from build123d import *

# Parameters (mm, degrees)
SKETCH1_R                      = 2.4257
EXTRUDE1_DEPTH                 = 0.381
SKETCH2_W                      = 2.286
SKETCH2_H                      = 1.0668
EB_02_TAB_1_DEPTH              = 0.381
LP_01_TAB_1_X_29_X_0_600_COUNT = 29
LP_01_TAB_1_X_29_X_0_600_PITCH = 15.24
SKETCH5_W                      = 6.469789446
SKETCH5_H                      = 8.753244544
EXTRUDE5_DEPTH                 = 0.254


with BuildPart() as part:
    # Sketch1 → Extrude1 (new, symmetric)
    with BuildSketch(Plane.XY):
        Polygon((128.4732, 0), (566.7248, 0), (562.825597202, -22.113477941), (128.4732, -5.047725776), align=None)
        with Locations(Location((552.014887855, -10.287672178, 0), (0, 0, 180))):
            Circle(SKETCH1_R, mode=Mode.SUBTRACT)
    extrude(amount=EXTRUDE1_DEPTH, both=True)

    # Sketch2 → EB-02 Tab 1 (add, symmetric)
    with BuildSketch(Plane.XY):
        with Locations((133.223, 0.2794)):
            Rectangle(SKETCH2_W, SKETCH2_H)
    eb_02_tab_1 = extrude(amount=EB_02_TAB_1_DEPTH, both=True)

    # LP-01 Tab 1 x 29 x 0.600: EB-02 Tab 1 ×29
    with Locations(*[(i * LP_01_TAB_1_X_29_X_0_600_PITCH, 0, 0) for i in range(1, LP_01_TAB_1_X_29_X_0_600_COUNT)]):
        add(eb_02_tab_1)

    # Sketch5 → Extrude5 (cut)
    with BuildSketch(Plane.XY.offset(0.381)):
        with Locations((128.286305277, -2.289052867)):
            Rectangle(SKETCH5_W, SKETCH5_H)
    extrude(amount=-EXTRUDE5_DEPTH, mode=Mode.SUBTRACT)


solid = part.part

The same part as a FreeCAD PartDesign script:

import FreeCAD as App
import Part
import Sketcher
Q = App.Units.Quantity


def add_polygon(sketch, points):
    """Adds a closed chain of lines whose ends are joined by coincident constraints."""
    first, n = sketch.GeometryCount, len(points)
    for a, b in zip(points, points[1:] + points[:1]):
        sketch.addGeometry(Part.LineSegment(App.Vector(*a, 0), App.Vector(*b, 0)), False)
    for i in range(n):
        sketch.addConstraint(Sketcher.Constraint("Coincident", first + i, 2, first + (i + 1) % n, 1))

doc = App.newDocument("Part")
params = doc.addObject("Spreadsheet::Sheet", "Params")
for row, (alias, value) in enumerate([
    ("sketch1_diameter", "0.191 in"),
    ("sketch1_width", "17.254 in"),
    ("pad1_length", "0.03 in"),
    ("sketch2_width", "0.09 in"),
    ("sketch2_height", "0.042 in"),
    ("pad2_length", "0.03 in"),
    ("linearpattern_pitch", "0.6 in"),
    ("pocket1_length", "0.01 in"),
], start=1):
    params.set(f"A{row}", alias)
    params.set(f"B{row}", "=" + value)
    params.setAlias(f"B{row}", alias)

body = doc.addObject("PartDesign::Body", "Body")

# Sketch on XY plane
sketch1 = body.newObject("Sketcher::SketchObject", "Sketch")
sketch1.AttachmentSupport = (doc.getObject("XY_Plane"), [""])
sketch1.MapMode = "FlatFace"
add_polygon(sketch1, [(566.7, 0), (128.5, 0), (128.5, -5), (562.8, -22.1)])  # lines 0-3
sketch1.addGeometry(Part.Circle(App.Vector(552, -10.3, 0), App.Vector(0, 0, 1), 2.4), False)  # 4
sketch1.addConstraint(Sketcher.Constraint("Horizontal", 0))
sketch1.addConstraint(Sketcher.Constraint("Vertical", 1))
sketch1.addConstraint(Sketcher.Constraint("PointOnObject", 0, 2, -1))
sketch1.addConstraint(Sketcher.Constraint("Diameter", 4, Q("0.191 in")))
sketch1.addConstraint(Sketcher.Constraint("Angle", 3, Q("80 deg")))
sketch1.addConstraint(Sketcher.Constraint("DistanceX", 0, 2, 0, 1, Q("17.254 in")))
sketch1.addConstraint(Sketcher.Constraint("Angle", 2, Q("-2.25 deg")))
sketch1.addConstraint(Sketcher.Constraint("DistanceX", -1, 1, 0, 2, Q("5.058 in")))
sketch1.addConstraint(Sketcher.Constraint("DistanceY", 1, 2, 1, 1, Q("5.047726 mm")))
sketch1.addConstraint(Sketcher.Constraint("DistanceX", 4, 3, 2, 2, Q("10.810709 mm")))
sketch1.addConstraint(Sketcher.Constraint("DistanceY", 4, 3, -1, 1, Q("10.287672 mm")))
sketch1.setExpression("Constraints[7]", "Params.sketch1_diameter")
sketch1.setExpression("Constraints[9]", "Params.sketch1_width")
pad1 = body.newObject("PartDesign::Pad", "Pad")
pad1.Profile = sketch1
pad1.setExpression("Length", "Params.pad1_length")
pad1.Midplane = True

# Sketch on XY plane
sketch2 = body.newObject("Sketcher::SketchObject", "Sketch001")
sketch2.AttachmentSupport = (doc.getObject("XY_Plane"), [""])
sketch2.MapMode = "FlatFace"
add_polygon(sketch2, [(132.1, 0.8), (132.1, -0.3), (134.4, -0.3), (134.4, 0.8)])  # lines 0-3
sketch2.addConstraint(Sketcher.Constraint("Vertical", 0))
sketch2.addConstraint(Sketcher.Constraint("Horizontal", 1))
sketch2.addConstraint(Sketcher.Constraint("Vertical", 2))
sketch2.addConstraint(Sketcher.Constraint("Horizontal", 3))
sketch2.addConstraint(Sketcher.Constraint("DistanceX", 1, 1, 1, 2, Q("0.09 in")))
sketch2.addConstraint(Sketcher.Constraint("DistanceX", -1, 1, 0, 2, Q("5.2 in")))
sketch2.addConstraint(Sketcher.Constraint("DistanceY", 0, 2, 0, 1, Q("0.042 in")))
sketch2.addConstraint(Sketcher.Constraint("DistanceY", 0, 2, -1, 1, Q("0.01 in")))
sketch2.setExpression("Constraints[8]", "Params.sketch2_width")
sketch2.setExpression("Constraints[10]", "Params.sketch2_height")
pad2 = body.newObject("PartDesign::Pad", "Pad001")
pad2.Profile = sketch2
pad2.setExpression("Length", "Params.pad2_length")
pad2.Midplane = True
doc.recompute()

linearpattern = body.newObject("PartDesign::LinearPattern", "LinearPattern")
linearpattern.Originals = [pad2]
linearpattern.Direction = (doc.getObject("X_Axis"), [""])
linearpattern.Mode = "offset"
linearpattern.setExpression("Offset", "Params.linearpattern_pitch")
linearpattern.Occurrences = 29
body.Tip = linearpattern

# Sketch on XY plane
sketch3 = body.newObject("Sketcher::SketchObject", "Sketch002")
sketch3.AttachmentSupport = (doc.getObject("XY_Plane"), [""])
sketch3.MapMode = "FlatFace"
sketch3.AttachmentOffset = App.Placement(App.Vector(0, 0, 0.015 * 25.4), App.Rotation())
add_polygon(sketch3, [(125, 2), (125, -7), (132, -7), (132, 2)])  # lines 0-3
sketch3.addConstraint(Sketcher.Constraint("Vertical", 0))
sketch3.addConstraint(Sketcher.Constraint("Horizontal", 1))
sketch3.addConstraint(Sketcher.Constraint("Vertical", 2))
sketch3.addConstraint(Sketcher.Constraint("Horizontal", 3))
sketch3.addConstraint(Sketcher.Constraint("DistanceX", -1, 1, 1, 2, Q("5.178 in")))
sketch3.addConstraint(Sketcher.Constraint("DistanceX", 1, 1, 1, 2, Q("6.469789 mm")))
sketch3.addConstraint(Sketcher.Constraint("DistanceY", 0, 2, 0, 1, Q("8.753245 mm")))
sketch3.addConstraint(Sketcher.Constraint("DistanceY", -1, 1, 2, 2, Q("2.087569 mm")))
pocket1 = body.newObject("PartDesign::Pocket", "Pocket")
pocket1.Profile = sketch3
pocket1.setExpression("Length", "Params.pocket1_length")

doc.recompute()
